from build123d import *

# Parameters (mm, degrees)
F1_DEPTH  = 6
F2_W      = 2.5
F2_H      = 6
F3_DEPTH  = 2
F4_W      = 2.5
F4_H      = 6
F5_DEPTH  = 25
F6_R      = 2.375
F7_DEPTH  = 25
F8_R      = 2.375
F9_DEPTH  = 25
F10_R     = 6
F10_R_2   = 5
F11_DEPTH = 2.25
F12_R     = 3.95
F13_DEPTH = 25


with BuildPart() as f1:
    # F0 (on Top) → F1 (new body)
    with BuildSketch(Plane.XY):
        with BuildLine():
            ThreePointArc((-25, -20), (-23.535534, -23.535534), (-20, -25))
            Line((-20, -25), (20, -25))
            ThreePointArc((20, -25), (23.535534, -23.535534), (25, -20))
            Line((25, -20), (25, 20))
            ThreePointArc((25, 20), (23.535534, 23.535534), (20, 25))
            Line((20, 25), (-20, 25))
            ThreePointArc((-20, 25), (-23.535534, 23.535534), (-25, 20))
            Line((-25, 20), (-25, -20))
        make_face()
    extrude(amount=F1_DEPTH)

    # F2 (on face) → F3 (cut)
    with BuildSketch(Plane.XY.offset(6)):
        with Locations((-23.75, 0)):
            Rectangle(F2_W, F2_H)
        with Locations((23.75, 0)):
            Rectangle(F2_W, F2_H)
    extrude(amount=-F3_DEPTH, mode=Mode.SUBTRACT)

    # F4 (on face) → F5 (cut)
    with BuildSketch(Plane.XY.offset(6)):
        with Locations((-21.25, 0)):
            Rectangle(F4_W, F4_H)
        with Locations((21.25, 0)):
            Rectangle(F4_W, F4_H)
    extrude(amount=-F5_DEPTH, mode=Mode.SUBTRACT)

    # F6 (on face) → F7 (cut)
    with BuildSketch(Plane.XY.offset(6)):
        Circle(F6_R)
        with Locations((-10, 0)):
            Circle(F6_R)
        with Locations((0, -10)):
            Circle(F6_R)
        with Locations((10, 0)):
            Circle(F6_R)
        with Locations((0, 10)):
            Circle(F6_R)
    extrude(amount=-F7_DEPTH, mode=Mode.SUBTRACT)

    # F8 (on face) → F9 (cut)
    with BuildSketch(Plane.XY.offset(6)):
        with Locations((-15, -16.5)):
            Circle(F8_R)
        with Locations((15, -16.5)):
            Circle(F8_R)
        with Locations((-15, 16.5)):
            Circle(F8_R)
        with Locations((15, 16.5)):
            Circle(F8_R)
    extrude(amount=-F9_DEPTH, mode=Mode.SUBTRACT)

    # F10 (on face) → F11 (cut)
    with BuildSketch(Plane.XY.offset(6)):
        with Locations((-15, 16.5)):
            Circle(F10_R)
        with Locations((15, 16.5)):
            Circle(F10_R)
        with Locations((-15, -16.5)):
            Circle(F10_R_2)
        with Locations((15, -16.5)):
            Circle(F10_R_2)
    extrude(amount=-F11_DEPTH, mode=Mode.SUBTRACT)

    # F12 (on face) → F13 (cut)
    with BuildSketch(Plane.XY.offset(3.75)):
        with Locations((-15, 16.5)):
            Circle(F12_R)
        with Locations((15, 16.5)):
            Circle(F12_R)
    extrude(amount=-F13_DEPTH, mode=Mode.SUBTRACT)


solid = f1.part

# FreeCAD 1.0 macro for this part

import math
import FreeCAD as App
import Part
import Sketcher

doc = App.newDocument("Part")
body = doc.addObject("PartDesign::Body", "Body")

# Sketch on XY plane
sketch1 = doc.addObject("Sketcher::SketchObject", "Sketch")
body.addObject(sketch1)
sketch1.AttachmentSupport = (doc.XY_Plane, [""])
sketch1.MapMode = "FlatFace"
sketch1.addGeometry([
    Part.ArcOfCircle(Part.Circle(App.Vector(-20, -20, 0), App.Vector(0, 0, 1), 5), math.radians(179.999996), math.radians(270.000004)),  # 0
    Part.LineSegment(App.Vector(-20, -25, 0), App.Vector(20, -25, 0)),  # 1
    Part.ArcOfCircle(Part.Circle(App.Vector(20, -20, 0), App.Vector(0, 0, 1), 5), math.radians(-90.000004), math.radians(0.000004)),  # 2
    Part.LineSegment(App.Vector(25, -20, 0), App.Vector(25, 20, 0)),  # 3
    Part.ArcOfCircle(Part.Circle(App.Vector(20, 20, 0), App.Vector(0, 0, 1), 5), math.radians(-0.000004), math.radians(90.000004)),  # 4
    Part.LineSegment(App.Vector(20, 25, 0), App.Vector(-20, 25, 0)),  # 5
    Part.ArcOfCircle(Part.Circle(App.Vector(-20, 20, 0), App.Vector(0, 0, 1), 5), math.radians(89.999996), math.radians(180.000004)),  # 6
    Part.LineSegment(App.Vector(-25, 20, 0), App.Vector(-25, -20, 0)),  # 7
], False)
sketch1.addConstraint([
    Sketcher.Constraint("Tangent", 0, 2, 1, 1),
    Sketcher.Constraint("Tangent", 1, 2, 2, 1),
    Sketcher.Constraint("Tangent", 2, 2, 3, 1),
    Sketcher.Constraint("Tangent", 3, 2, 4, 1),
    Sketcher.Constraint("Tangent", 4, 2, 5, 1),
    Sketcher.Constraint("Tangent", 5, 2, 6, 1),
    Sketcher.Constraint("Tangent", 6, 2, 7, 1),
    Sketcher.Constraint("Tangent", 7, 2, 0, 1),
    Sketcher.Constraint("Horizontal", 1),
    Sketcher.Constraint("Vertical", 3),
    Sketcher.Constraint("Horizontal", 5),
    Sketcher.Constraint("Vertical", 7),
    Sketcher.Constraint("Equal", 0, 2),
    Sketcher.Constraint("Equal", 2, 4),
    Sketcher.Constraint("Equal", 4, 6),
    Sketcher.Constraint("Symmetric", 0, 3, 4, 3, -1, 1),
    Sketcher.Constraint("Equal", 5, 3),
    Sketcher.Constraint("Radius", 0, 5.0),
    Sketcher.Constraint("DistanceX", 1, 1, 1, 2, 40.0),
])
pad1 = doc.addObject("PartDesign::Pad", "Pad")
body.addObject(pad1)
pad1.Profile = sketch1
pad1.Length = 6

# Sketch on XY plane
sketch2 = doc.addObject("Sketcher::SketchObject", "Sketch001")
body.addObject(sketch2)
sketch2.AttachmentSupport = (doc.XY_Plane, [""])
sketch2.MapMode = "FlatFace"
sketch2.AttachmentOffset = App.Placement(App.Vector(0, 0, 6), App.Rotation())
sketch2.addGeometry([
    Part.LineSegment(App.Vector(-25, 3, 0), App.Vector(-25, -3, 0)),  # 0
    Part.LineSegment(App.Vector(-25, -3, 0), App.Vector(-22.5, -3, 0)),  # 1
    Part.LineSegment(App.Vector(-22.5, -3, 0), App.Vector(-22.5, 3, 0)),  # 2
    Part.LineSegment(App.Vector(-22.5, 3, 0), App.Vector(-25, 3, 0)),  # 3
    Part.LineSegment(App.Vector(22.5, 3, 0), App.Vector(22.5, -3, 0)),  # 4
    Part.LineSegment(App.Vector(22.5, -3, 0), App.Vector(25, -3, 0)),  # 5
    Part.LineSegment(App.Vector(25, -3, 0), App.Vector(25, 3, 0)),  # 6
    Part.LineSegment(App.Vector(25, 3, 0), App.Vector(22.5, 3, 0)),  # 7
], False)
sketch2.addConstraint([
    Sketcher.Constraint("Coincident", 0, 2, 1, 1),
    Sketcher.Constraint("Coincident", 1, 2, 2, 1),
    Sketcher.Constraint("Coincident", 2, 2, 3, 1),
    Sketcher.Constraint("Coincident", 3, 2, 0, 1),
    Sketcher.Constraint("Coincident", 4, 2, 5, 1),
    Sketcher.Constraint("Coincident", 5, 2, 6, 1),
    Sketcher.Constraint("Coincident", 6, 2, 7, 1),
    Sketcher.Constraint("Coincident", 7, 2, 4, 1),
    Sketcher.Constraint("Vertical", 0),
    Sketcher.Constraint("Horizontal", 1),
    Sketcher.Constraint("Vertical", 2),
    Sketcher.Constraint("Horizontal", 3),
    Sketcher.Constraint("Vertical", 4),
    Sketcher.Constraint("Horizontal", 5),
    Sketcher.Constraint("Vertical", 6),
    Sketcher.Constraint("Horizontal", 7),
    Sketcher.Constraint("Symmetric", 2, 2, 4, 2, -1, 1),
    Sketcher.Constraint("Symmetric", 0, 2, 6, 2, -1, 1),
    Sketcher.Constraint("Horizontal", 1, 2, 4, 2),
    Sketcher.Constraint("DistanceY", 0, 2, 0, 1, 6.0),
    Sketcher.Constraint("DistanceX", 1, 1, 1, 2, 2.5),
    Sketcher.Constraint("DistanceX", 0, 2, -1, 1, 25.0),
])
pocket1 = doc.addObject("PartDesign::Pocket", "Pocket")
body.addObject(pocket1)
pocket1.Profile = sketch2
pocket1.Length = 2

# Sketch on XY plane
sketch3 = doc.addObject("Sketcher::SketchObject", "Sketch002")
body.addObject(sketch3)
sketch3.AttachmentSupport = (doc.XY_Plane, [""])
sketch3.MapMode = "FlatFace"
sketch3.AttachmentOffset = App.Placement(App.Vector(0, 0, 6), App.Rotation())
sketch3.addGeometry([
    Part.LineSegment(App.Vector(-22.5, 3, 0), App.Vector(-22.5, -3, 0)),  # 0
    Part.LineSegment(App.Vector(-22.5, -3, 0), App.Vector(-20, -3, 0)),  # 1
    Part.LineSegment(App.Vector(-20, -3, 0), App.Vector(-20, 3, 0)),  # 2
    Part.LineSegment(App.Vector(-20, 3, 0), App.Vector(-22.5, 3, 0)),  # 3
    Part.LineSegment(App.Vector(20, 3, 0), App.Vector(20, -3, 0)),  # 4
    Part.LineSegment(App.Vector(20, -3, 0), App.Vector(22.5, -3, 0)),  # 5
    Part.LineSegment(App.Vector(22.5, -3, 0), App.Vector(22.5, 3, 0)),  # 6
    Part.LineSegment(App.Vector(22.5, 3, 0), App.Vector(20, 3, 0)),  # 7
], False)
sketch3.addConstraint([
    Sketcher.Constraint("Coincident", 0, 2, 1, 1),
    Sketcher.Constraint("Coincident", 1, 2, 2, 1),
    Sketcher.Constraint("Coincident", 2, 2, 3, 1),
    Sketcher.Constraint("Coincident", 3, 2, 0, 1),
    Sketcher.Constraint("Coincident", 4, 2, 5, 1),
    Sketcher.Constraint("Coincident", 5, 2, 6, 1),
    Sketcher.Constraint("Coincident", 6, 2, 7, 1),
    Sketcher.Constraint("Coincident", 7, 2, 4, 1),
    Sketcher.Constraint("Vertical", 0),
    Sketcher.Constraint("Horizontal", 1),
    Sketcher.Constraint("Vertical", 2),
    Sketcher.Constraint("Horizontal", 3),
    Sketcher.Constraint("Vertical", 4),
    Sketcher.Constraint("Horizontal", 5),
    Sketcher.Constraint("Vertical", 6),
    Sketcher.Constraint("Horizontal", 7),
    Sketcher.Constraint("Symmetric", 2, 2, 4, 2, -1, 1),
    Sketcher.Constraint("Symmetric", 0, 2, 6, 2, -1, 1),
    Sketcher.Constraint("Horizontal", 1, 2, 4, 2),
    Sketcher.Constraint("DistanceY", 0, 2, 0, 1, 6.0),
    Sketcher.Constraint("DistanceX", 1, 1, 1, 2, 2.5),
    Sketcher.Constraint("DistanceX", 1, 2, -1, 1, 20.0),
])
pocket2 = doc.addObject("PartDesign::Pocket", "Pocket001")
body.addObject(pocket2)
pocket2.Profile = sketch3
pocket2.Length = 25

# Sketch on XY plane
sketch4 = doc.addObject("Sketcher::SketchObject", "Sketch003")
body.addObject(sketch4)
sketch4.AttachmentSupport = (doc.XY_Plane, [""])
sketch4.MapMode = "FlatFace"
sketch4.AttachmentOffset = App.Placement(App.Vector(0, 0, 6), App.Rotation())
sketch4.addGeometry([
    Part.Circle(App.Vector(0, 0, 0), App.Vector(0, 0, 1), 2.375),  # 0
    Part.Circle(App.Vector(-10, 0, 0), App.Vector(0, 0, 1), 2.375),  # 1
    Part.Circle(App.Vector(0, -10, 0), App.Vector(0, 0, 1), 2.375),  # 2
    Part.Circle(App.Vector(10, 0, 0), App.Vector(0, 0, 1), 2.375),  # 3
    Part.Circle(App.Vector(0, 10, 0), App.Vector(0, 0, 1), 2.375),  # 4
], False)
sketch4.addConstraint([
    Sketcher.Constraint("Coincident", 0, 3, -1, 1),
    Sketcher.Constraint("Equal", 0, 1),
    Sketcher.Constraint("Equal", 1, 2),
    Sketcher.Constraint("Equal", 2, 3),
    Sketcher.Constraint("Equal", 3, 4),
    Sketcher.Constraint("Symmetric", 1, 3, 3, 3, -1, 1),
    Sketcher.Constraint("Symmetric", 2, 3, 4, 3, -1, 1),
    Sketcher.Constraint("PointOnObject", 1, 3, -1),
    Sketcher.Constraint("PointOnObject", 2, 3, -2),
    Sketcher.Constraint("Diameter", 0, 4.75),
    Sketcher.Constraint("DistanceX", 1, 3, -1, 1, 10.0),
    Sketcher.Constraint("DistanceY", 2, 3, -1, 1, 10.0),
])
pocket3 = doc.addObject("PartDesign::Pocket", "Pocket002")
body.addObject(pocket3)
pocket3.Profile = sketch4
pocket3.Length = 25

# Sketch on XY plane
sketch5 = doc.addObject("Sketcher::SketchObject", "Sketch004")
body.addObject(sketch5)
sketch5.AttachmentSupport = (doc.XY_Plane, [""])
sketch5.MapMode = "FlatFace"
sketch5.AttachmentOffset = App.Placement(App.Vector(0, 0, 6), App.Rotation())
sketch5.addGeometry([
    Part.Circle(App.Vector(-15, -16.5, 0), App.Vector(0, 0, 1), 2.375),
    Part.Circle(App.Vector(15, -16.5, 0), App.Vector(0, 0, 1), 2.375),
    Part.Circle(App.Vector(-15, 16.5, 0), App.Vector(0, 0, 1), 2.375),
    Part.Circle(App.Vector(15, 16.5, 0), App.Vector(0, 0, 1), 2.375),
], False)
sketch5.addConstraint([
    Sketcher.Constraint("Equal", 0, 1),
    Sketcher.Constraint("Equal", 1, 2),
    Sketcher.Constraint("Equal", 2, 3),
    Sketcher.Constraint("Symmetric", 1, 3, 2, 3, -1, 1),
    Sketcher.Constraint("Symmetric", 0, 3, 3, 3, -1, 1),
    Sketcher.Constraint("Symmetric", 0, 3, 1, 3, -2),
    Sketcher.Constraint("Diameter", 0, 4.75),
    Sketcher.Constraint("DistanceX", 0, 3, -1, 1, 15.0),
    Sketcher.Constraint("DistanceY", 0, 3, 2, 3, 33.0),
])
pocket4 = doc.addObject("PartDesign::Pocket", "Pocket003")
body.addObject(pocket4)
pocket4.Profile = sketch5
pocket4.Length = 25

# Sketch on XY plane
sketch6 = doc.addObject("Sketcher::SketchObject", "Sketch005")
body.addObject(sketch6)
sketch6.AttachmentSupport = (doc.XY_Plane, [""])
sketch6.MapMode = "FlatFace"
sketch6.AttachmentOffset = App.Placement(App.Vector(0, 0, 6), App.Rotation())
sketch6.addGeometry([
    Part.Circle(App.Vector(-15, 16.5, 0), App.Vector(0, 0, 1), 6),
    Part.Circle(App.Vector(15, 16.5, 0), App.Vector(0, 0, 1), 6),
    Part.Circle(App.Vector(-15, -16.5, 0), App.Vector(0, 0, 1), 5),
    Part.Circle(App.Vector(15, -16.5, 0), App.Vector(0, 0, 1), 5),
], False)
sketch6.addConstraint([
    Sketcher.Constraint("Equal", 0, 1),
    Sketcher.Constraint("Equal", 2, 3),
    Sketcher.Constraint("Symmetric", 1, 3, 2, 3, -1, 1),
    Sketcher.Constraint("Symmetric", 0, 3, 3, 3, -1, 1),
    Sketcher.Constraint("Symmetric", 0, 3, 1, 3, -2),
    Sketcher.Constraint("Diameter", 0, 12.0),
    Sketcher.Constraint("Diameter", 2, 10.0),
    Sketcher.Constraint("DistanceX", 0, 3, -1, 1, 15.0),
    Sketcher.Constraint("DistanceY", 2, 3, 0, 3, 33.0),
])
pocket5 = doc.addObject("PartDesign::Pocket", "Pocket004")
body.addObject(pocket5)
pocket5.Profile = sketch6
pocket5.Length = 2.25

# Sketch on XY plane
sketch7 = doc.addObject("Sketcher::SketchObject", "Sketch006")
body.addObject(sketch7)
sketch7.AttachmentSupport = (doc.XY_Plane, [""])
sketch7.MapMode = "FlatFace"
sketch7.AttachmentOffset = App.Placement(App.Vector(0, 0, 3.75), App.Rotation())
sketch7.addGeometry([
    Part.Circle(App.Vector(-15, 16.5, 0), App.Vector(0, 0, 1), 3.95),
    Part.Circle(App.Vector(15, 16.5, 0), App.Vector(0, 0, 1), 3.95),
], False)
sketch7.addConstraint([
    Sketcher.Constraint("Equal", 0, 1),
    Sketcher.Constraint("Symmetric", 0, 3, 1, 3, -2),
    Sketcher.Constraint("Diameter", 0, 7.9),
    Sketcher.Constraint("DistanceX", 0, 3, -1, 1, 15.0),
    Sketcher.Constraint("DistanceY", -1, 1, 0, 3, 16.5),
])
pocket6 = doc.addObject("PartDesign::Pocket", "Pocket005")
body.addObject(pocket6)
pocket6.Profile = sketch7
pocket6.Length = 25

doc.recompute()
